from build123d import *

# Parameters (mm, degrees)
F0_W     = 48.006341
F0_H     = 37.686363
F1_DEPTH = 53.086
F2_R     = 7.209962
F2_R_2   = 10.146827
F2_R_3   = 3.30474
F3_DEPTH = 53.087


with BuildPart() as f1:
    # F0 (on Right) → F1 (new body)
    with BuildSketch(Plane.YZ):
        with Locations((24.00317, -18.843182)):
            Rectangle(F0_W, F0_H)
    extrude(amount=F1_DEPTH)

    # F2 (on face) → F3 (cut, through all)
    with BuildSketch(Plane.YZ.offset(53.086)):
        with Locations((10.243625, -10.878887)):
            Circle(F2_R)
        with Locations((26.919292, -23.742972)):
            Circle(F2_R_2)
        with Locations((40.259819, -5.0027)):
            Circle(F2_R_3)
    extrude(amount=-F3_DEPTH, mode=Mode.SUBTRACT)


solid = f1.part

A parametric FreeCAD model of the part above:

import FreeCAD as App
import Part
import Sketcher
Q = App.Units.Quantity

doc = App.newDocument("Part")
body = doc.addObject("PartDesign::Body", "Body")

sketch1 = body.newObject("Sketcher::SketchObject", "Sketch")
sketch1.AttachmentSupport = (doc.getObject("YZ_Plane"), [""])
sketch1.MapMode = "FlatFace"
sketch1.addGeometry([
    Part.LineSegment(App.Vector(0, 0, 0), App.Vector(0, -37.686363, 0)),
    Part.LineSegment(App.Vector(0, -37.686363, 0), App.Vector(48.006341, -37.686363, 0)),
    Part.LineSegment(App.Vector(48.006341, -37.686363, 0), App.Vector(48.006341, 0, 0)),
    Part.LineSegment(App.Vector(48.006341, 0, 0), App.Vector(0, 0, 0)),
], False)
sketch1.addConstraint([
    Sketcher.Constraint("Coincident", 0, 2, 1, 1),
    Sketcher.Constraint("Coincident", 1, 2, 2, 1),
    Sketcher.Constraint("Coincident", 2, 2, 3, 1),
    Sketcher.Constraint("Coincident", 3, 2, 0, 1),
    Sketcher.Constraint("Vertical", 0),
    Sketcher.Constraint("Horizontal", 1),
    Sketcher.Constraint("Vertical", 2),
    Sketcher.Constraint("Horizontal", 3),
    Sketcher.Constraint("Coincident", 3, 2, -1, 1),
    Sketcher.Constraint("DistanceX", 1, 1, 1, 2, 48.006341),
    Sketcher.Constraint("DistanceY", 0, 2, 0, 1, 37.686363),
])
pad1 = body.newObject("PartDesign::Pad", "Pad")
pad1.Profile = sketch1
pad1.Length = Q("2.09 in")

sketch2 = body.newObject("Sketcher::SketchObject", "Sketch001")
sketch2.AttachmentSupport = (doc.getObject("YZ_Plane"), [""])
sketch2.MapMode = "FlatFace"
sketch2.AttachmentOffset = App.Placement(App.Vector(0, 0, 2.09 * 25.4), App.Rotation())
sketch2.addGeometry([
    Part.Circle(App.Vector(10.243625, -10.878887, 0), App.Vector(0, 0, 1), 7.209962),
    Part.Circle(App.Vector(26.919292, -23.742972, 0), App.Vector(0, 0, 1), 10.146827),
    Part.Circle(App.Vector(40.259819, -5.0027, 0), App.Vector(0, 0, 1), 3.30474),
], False)
sketch2.addConstraint([
    Sketcher.Constraint("Diameter", 2, 6.60948),
    Sketcher.Constraint("Diameter", 0, 14.419924),
    Sketcher.Constraint("Diameter", 1, 20.293654),
    Sketcher.Constraint("DistanceY", 2, 3, -1, 1, 5.0027),
    Sketcher.Constraint("DistanceX", -1, 1, 1, 3, 26.919292),
    Sketcher.Constraint("DistanceX", -1, 1, 2, 3, 40.259819),
    Sketcher.Constraint("DistanceX", -1, 1, 0, 3, 10.243625),
    Sketcher.Constraint("DistanceY", 0, 3, -1, 1, 10.878887),
    Sketcher.Constraint("DistanceY", 1, 3, -1, 1, 23.742972),
])
pocket1 = body.newObject("PartDesign::Pocket", "Pocket")
pocket1.Profile = sketch2
pocket1.Type = "ThroughAll"

doc.recompute()
